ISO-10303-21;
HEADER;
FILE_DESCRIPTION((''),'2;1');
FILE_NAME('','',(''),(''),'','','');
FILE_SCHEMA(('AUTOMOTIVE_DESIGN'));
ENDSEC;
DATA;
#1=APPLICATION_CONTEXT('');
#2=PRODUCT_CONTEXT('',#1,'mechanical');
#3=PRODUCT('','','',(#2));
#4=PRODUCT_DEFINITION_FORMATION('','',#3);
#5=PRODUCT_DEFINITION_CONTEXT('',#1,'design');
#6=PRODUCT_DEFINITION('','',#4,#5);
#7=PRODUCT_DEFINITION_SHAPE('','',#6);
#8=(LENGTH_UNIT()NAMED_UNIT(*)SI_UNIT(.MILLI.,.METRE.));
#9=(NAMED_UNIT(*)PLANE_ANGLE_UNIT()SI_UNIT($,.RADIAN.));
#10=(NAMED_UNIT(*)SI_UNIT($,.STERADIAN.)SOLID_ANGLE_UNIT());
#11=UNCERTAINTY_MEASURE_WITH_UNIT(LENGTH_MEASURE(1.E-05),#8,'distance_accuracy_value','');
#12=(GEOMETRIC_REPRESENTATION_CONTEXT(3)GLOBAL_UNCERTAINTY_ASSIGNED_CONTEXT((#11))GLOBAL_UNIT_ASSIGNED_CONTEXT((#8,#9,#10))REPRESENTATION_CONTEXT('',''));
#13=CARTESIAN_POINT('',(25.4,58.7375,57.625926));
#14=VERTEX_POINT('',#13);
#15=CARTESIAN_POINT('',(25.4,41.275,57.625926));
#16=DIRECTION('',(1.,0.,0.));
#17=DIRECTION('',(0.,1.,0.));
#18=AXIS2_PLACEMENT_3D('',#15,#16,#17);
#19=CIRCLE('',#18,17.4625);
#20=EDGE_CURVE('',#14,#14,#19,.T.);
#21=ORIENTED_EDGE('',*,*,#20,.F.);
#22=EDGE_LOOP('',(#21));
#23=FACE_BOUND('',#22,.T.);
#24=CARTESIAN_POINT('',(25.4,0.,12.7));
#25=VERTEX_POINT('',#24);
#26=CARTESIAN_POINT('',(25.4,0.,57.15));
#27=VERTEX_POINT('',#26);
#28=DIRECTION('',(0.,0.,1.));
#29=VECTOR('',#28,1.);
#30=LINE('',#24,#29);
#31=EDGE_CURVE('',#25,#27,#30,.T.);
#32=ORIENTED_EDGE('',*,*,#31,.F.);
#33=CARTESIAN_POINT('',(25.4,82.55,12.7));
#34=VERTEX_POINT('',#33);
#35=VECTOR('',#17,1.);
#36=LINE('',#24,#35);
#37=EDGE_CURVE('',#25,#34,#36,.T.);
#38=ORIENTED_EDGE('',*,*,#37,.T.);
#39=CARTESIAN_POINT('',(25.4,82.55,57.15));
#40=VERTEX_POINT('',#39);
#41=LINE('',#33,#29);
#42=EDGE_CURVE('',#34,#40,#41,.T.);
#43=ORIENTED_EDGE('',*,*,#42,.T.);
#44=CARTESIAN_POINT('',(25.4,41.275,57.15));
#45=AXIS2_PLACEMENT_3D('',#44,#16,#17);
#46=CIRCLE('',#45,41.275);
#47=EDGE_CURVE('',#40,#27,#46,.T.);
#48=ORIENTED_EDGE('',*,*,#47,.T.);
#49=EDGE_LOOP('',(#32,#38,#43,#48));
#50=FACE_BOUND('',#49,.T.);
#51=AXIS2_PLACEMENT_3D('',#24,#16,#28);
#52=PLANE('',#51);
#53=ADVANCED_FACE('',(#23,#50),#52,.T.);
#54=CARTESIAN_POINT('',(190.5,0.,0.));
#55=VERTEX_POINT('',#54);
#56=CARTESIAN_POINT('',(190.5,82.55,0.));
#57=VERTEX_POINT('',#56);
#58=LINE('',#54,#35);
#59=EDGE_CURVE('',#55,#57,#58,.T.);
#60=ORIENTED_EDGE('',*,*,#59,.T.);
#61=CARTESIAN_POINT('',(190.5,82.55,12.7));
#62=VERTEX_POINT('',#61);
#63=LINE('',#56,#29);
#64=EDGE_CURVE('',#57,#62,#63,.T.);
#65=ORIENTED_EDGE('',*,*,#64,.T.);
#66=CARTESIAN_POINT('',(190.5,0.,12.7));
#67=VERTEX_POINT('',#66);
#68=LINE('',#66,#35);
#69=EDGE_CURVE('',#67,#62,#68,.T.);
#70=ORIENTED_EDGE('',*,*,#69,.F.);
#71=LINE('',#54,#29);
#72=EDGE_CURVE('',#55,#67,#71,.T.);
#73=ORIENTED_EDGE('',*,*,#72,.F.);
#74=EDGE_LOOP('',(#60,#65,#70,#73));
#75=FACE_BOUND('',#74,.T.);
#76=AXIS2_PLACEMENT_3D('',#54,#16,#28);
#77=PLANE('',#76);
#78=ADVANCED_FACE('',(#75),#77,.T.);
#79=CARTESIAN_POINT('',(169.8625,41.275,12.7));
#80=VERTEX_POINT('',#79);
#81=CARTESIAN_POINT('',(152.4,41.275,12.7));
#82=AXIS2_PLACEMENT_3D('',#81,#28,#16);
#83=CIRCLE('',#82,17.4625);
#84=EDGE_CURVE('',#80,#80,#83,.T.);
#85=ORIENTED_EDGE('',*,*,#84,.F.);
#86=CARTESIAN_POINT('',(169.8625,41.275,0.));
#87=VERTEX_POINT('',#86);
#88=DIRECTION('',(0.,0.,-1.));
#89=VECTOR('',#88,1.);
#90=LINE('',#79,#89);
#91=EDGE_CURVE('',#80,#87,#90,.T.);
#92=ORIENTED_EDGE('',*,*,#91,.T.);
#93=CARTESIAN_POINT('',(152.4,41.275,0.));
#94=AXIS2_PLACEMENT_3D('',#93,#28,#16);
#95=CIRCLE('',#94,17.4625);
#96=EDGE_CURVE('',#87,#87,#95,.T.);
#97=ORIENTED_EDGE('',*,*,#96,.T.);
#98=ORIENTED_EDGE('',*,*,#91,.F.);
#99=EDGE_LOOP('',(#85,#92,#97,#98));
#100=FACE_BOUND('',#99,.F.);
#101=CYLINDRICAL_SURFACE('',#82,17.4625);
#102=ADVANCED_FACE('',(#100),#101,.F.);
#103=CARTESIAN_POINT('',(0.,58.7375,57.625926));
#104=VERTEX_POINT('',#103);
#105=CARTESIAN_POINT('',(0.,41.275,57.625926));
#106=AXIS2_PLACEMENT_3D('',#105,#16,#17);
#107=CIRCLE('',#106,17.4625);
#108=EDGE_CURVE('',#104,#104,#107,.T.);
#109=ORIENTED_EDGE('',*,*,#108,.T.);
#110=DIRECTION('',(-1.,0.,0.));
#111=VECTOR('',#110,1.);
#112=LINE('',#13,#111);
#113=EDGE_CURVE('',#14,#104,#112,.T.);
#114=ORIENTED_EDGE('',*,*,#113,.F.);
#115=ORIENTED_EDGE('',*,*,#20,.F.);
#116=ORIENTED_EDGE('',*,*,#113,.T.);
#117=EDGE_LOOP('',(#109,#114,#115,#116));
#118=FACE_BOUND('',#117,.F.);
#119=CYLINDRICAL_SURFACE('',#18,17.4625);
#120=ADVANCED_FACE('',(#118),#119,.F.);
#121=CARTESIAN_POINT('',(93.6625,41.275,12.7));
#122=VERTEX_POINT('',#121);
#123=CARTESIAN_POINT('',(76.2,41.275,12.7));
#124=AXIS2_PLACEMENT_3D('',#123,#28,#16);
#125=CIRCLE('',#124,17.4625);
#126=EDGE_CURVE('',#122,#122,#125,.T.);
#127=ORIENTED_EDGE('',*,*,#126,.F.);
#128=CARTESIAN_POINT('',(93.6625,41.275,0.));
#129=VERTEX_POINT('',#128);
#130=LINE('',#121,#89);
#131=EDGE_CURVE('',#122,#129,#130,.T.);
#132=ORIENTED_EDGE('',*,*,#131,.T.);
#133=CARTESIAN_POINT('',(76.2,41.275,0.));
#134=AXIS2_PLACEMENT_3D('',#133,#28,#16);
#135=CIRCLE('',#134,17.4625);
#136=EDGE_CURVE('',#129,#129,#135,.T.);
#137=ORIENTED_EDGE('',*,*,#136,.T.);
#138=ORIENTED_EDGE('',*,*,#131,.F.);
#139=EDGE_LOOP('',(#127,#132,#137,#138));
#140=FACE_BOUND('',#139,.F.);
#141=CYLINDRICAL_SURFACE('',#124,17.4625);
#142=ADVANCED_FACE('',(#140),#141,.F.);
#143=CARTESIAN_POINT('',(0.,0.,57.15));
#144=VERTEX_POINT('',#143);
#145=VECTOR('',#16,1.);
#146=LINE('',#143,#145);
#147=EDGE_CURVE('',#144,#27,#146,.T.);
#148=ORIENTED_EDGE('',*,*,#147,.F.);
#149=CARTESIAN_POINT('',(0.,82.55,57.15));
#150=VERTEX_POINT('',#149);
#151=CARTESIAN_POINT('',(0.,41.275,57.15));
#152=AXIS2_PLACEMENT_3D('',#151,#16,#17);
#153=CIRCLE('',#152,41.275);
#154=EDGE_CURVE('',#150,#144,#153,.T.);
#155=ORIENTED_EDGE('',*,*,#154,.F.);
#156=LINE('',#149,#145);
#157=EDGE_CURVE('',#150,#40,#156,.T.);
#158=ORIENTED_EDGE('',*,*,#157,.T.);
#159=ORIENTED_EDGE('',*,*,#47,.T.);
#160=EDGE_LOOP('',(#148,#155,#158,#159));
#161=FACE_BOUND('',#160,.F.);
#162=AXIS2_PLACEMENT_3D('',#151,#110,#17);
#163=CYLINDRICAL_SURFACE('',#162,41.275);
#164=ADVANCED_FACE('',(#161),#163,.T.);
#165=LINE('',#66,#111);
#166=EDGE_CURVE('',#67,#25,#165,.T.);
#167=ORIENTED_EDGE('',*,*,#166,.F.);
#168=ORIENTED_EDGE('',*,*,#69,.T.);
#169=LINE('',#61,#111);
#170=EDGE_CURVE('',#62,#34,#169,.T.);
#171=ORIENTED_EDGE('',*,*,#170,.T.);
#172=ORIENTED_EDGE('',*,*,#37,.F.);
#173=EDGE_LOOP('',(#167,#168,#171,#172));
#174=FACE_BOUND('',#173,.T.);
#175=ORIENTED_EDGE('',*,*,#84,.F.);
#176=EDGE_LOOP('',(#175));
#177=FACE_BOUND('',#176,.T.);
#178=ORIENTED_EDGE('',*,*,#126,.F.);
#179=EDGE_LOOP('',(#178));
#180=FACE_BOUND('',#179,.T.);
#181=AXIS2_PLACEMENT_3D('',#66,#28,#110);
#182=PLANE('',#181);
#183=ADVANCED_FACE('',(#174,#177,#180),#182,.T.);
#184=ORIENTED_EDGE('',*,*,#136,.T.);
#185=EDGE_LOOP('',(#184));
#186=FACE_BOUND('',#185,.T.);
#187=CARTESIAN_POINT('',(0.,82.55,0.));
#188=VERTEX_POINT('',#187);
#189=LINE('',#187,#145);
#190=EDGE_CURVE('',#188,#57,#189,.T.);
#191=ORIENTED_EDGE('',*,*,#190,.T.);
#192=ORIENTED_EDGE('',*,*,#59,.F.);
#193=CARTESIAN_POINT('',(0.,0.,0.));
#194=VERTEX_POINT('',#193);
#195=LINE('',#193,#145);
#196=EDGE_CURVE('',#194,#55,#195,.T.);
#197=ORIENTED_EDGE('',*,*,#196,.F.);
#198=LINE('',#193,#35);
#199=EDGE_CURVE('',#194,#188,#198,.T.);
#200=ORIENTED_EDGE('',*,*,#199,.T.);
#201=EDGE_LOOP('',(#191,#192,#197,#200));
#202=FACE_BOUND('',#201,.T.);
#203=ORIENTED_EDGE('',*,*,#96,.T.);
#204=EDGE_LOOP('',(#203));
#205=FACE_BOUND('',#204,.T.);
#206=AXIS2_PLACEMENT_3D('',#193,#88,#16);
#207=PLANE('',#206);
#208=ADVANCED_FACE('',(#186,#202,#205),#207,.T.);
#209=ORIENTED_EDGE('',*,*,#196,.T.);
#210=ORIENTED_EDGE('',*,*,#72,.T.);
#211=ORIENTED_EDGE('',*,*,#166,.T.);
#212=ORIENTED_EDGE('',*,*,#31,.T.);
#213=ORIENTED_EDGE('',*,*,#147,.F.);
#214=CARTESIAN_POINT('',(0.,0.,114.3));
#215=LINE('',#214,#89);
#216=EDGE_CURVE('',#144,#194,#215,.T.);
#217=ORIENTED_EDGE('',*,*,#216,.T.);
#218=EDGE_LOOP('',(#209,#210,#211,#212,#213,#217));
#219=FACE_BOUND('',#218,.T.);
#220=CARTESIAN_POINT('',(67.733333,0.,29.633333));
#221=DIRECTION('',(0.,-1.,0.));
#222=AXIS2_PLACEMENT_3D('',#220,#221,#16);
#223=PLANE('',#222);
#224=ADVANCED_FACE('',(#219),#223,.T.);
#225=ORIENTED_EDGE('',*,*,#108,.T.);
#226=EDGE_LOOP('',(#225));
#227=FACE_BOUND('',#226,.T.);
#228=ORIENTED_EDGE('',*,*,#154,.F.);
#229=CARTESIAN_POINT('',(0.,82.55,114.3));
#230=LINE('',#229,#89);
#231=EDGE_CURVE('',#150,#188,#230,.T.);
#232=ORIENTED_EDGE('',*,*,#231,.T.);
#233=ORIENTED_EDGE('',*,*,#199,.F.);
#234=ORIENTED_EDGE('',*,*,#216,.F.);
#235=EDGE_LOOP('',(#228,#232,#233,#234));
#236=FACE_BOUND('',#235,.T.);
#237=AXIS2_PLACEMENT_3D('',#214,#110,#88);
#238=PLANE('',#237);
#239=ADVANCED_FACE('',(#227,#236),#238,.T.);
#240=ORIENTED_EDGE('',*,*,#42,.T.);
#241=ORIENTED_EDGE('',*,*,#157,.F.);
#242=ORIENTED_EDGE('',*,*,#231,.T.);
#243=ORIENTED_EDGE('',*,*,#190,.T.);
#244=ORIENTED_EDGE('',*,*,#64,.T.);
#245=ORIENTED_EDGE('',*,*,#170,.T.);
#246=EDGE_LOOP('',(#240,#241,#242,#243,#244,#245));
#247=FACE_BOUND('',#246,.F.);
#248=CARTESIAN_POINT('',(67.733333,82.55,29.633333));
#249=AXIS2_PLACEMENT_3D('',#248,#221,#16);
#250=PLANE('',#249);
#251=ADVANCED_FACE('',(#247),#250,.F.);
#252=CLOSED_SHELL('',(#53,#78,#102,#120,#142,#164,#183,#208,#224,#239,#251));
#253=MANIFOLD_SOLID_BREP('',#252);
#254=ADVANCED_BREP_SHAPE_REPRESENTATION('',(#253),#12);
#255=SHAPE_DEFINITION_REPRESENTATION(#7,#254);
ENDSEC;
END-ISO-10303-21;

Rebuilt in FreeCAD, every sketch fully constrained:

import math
import FreeCAD as App
import Part
import Sketcher
Q = App.Units.Quantity


def add_polygon(sketch, points):
    """Adds a closed chain of lines whose ends are joined by coincident constraints."""
    first, n = sketch.GeometryCount, len(points)
    for a, b in zip(points, points[1:] + points[:1]):
        sketch.addGeometry(Part.LineSegment(App.Vector(*a, 0), App.Vector(*b, 0)), False)
    for i in range(n):
        sketch.addConstraint(Sketcher.Constraint("Coincident", first + i, 2, first + (i + 1) % n, 1))

doc = App.newDocument("Part")
body = doc.addObject("PartDesign::Body", "Body")

# Sketch on XZ plane
sketch1 = body.newObject("Sketcher::SketchObject", "Sketch")
sketch1.AttachmentSupport = (doc.getObject("XZ_Plane"), [""])
sketch1.MapMode = "FlatFace"
add_polygon(sketch1, [(0, 114), (0, 0), (190, 0), (190, 13), (25, 13), (25, 114)])  # lines 0-5
sketch1.addConstraint([
    Sketcher.Constraint("Vertical", 0),
    Sketcher.Constraint("Horizontal", 1),
    Sketcher.Constraint("Vertical", 2),
    Sketcher.Constraint("Horizontal", 3),
    Sketcher.Constraint("Vertical", 4),
    Sketcher.Constraint("Horizontal", 5),
    Sketcher.Constraint("Coincident", 0, 2, -1, 1),
    Sketcher.Constraint("DistanceX", 5, 2, 5, 1, Q("1 in")),
    Sketcher.Constraint("DistanceY", 4, 1, 4, 2, Q("4 in")),
    Sketcher.Constraint("DistanceX", 1, 1, 1, 2, Q("7.5 in")),
    Sketcher.Constraint("DistanceY", 0, 2, 0, 1, Q("4.5 in")),
])
pad1 = body.newObject("PartDesign::Pad", "Pad")
pad1.Profile = sketch1
pad1.Length = Q("3.25 in")
pad1.Reversed = True

# Sketch on XY plane
sketch2 = body.newObject("Sketcher::SketchObject", "Sketch001")
sketch2.AttachmentSupport = (doc.getObject("XY_Plane"), [""])
sketch2.MapMode = "FlatFace"
sketch2.AttachmentOffset = App.Placement(App.Vector(0, 0, 0.5 * 25.4), App.Rotation())
sketch2.addGeometry([
    Part.Circle(App.Vector(76, 41, 0), App.Vector(0, 0, 1), 17),
    Part.Circle(App.Vector(152, 41, 0), App.Vector(0, 0, 1), 17),
], False)
sketch2.addConstraint([
    Sketcher.Constraint("Equal", 0, 1),
    Sketcher.Constraint("Horizontal", 0, 3, 1, 3),
    Sketcher.Constraint("Diameter", 0, Q("1.375 in")),
    Sketcher.Constraint("DistanceX", -1, 1, 0, 3, Q("3 in")),
    Sketcher.Constraint("DistanceX", -1, 1, 1, 3, Q("6 in")),
    Sketcher.Constraint("DistanceY", -1, 1, 0, 3, Q("1.625 in")),
])
pocket1 = body.newObject("PartDesign::Pocket", "Pocket")
pocket1.Profile = sketch2
pocket1.Length = Q("0.5 in")

# Sketch on YZ plane
sketch3 = body.newObject("Sketcher::SketchObject", "Sketch002")
sketch3.AttachmentSupport = (doc.getObject("YZ_Plane"), [""])
sketch3.MapMode = "FlatFace"
sketch3.addGeometry([
    Part.ArcOfCircle(Part.Circle(App.Vector(41, 57, 0), App.Vector(0, 0, 1), 41), math.radians(0), math.radians(180)),
    Part.LineSegment(App.Vector(0, 57, 0), App.Vector(0, 114, 0)),
    Part.LineSegment(App.Vector(0, 114, 0), App.Vector(83, 114, 0)),
    Part.LineSegment(App.Vector(83, 114, 0), App.Vector(83, 57, 0)),
], False)
sketch3.addConstraint([
    Sketcher.Constraint("Tangent", 0, 2, 1, 1),
    Sketcher.Constraint("Coincident", 1, 2, 2, 1),
    Sketcher.Constraint("Coincident", 2, 2, 3, 1),
    Sketcher.Constraint("Tangent", 3, 2, 0, 1),
    Sketcher.Constraint("Vertical", 1),
    Sketcher.Constraint("Horizontal", 2),
    Sketcher.Constraint("Vertical", 3),
    Sketcher.Constraint("PointOnObject", 0, 2, -2),
    Sketcher.Constraint("Radius", 0, Q("1.625 in")),
    Sketcher.Constraint("DistanceY", 1, 1, 1, 2, Q("2.25 in")),
    Sketcher.Constraint("DistanceY", -1, 1, 1, 2, Q("4.5 in")),
])
pocket2 = body.newObject("PartDesign::Pocket", "Pocket001")
pocket2.Profile = sketch3
pocket2.Length = Q("1 in")
pocket2.Reversed = True

# Sketch on YZ plane
sketch4 = body.newObject("Sketcher::SketchObject", "Sketch003")
sketch4.AttachmentSupport = (doc.getObject("YZ_Plane"), [""])
sketch4.MapMode = "FlatFace"
sketch4.AttachmentOffset = App.Placement(App.Vector(0, 0, 1 * 25.4), App.Rotation())
sketch4.addGeometry(Part.Circle(App.Vector(41, 58, 0), App.Vector(0, 0, 1), 17), False)
sketch4.addConstraint([
    Sketcher.Constraint("Diameter", 0, Q("1.375 in")),
    Sketcher.Constraint("DistanceX", -1, 1, 0, 3, Q("1.625 in")),
    Sketcher.Constraint("DistanceY", -1, 1, 0, 3, Q("57.625926 mm")),
])
pocket3 = body.newObject("PartDesign::Pocket", "Pocket002")
pocket3.Profile = sketch4
pocket3.Type = "ThroughAll"

doc.recompute()
